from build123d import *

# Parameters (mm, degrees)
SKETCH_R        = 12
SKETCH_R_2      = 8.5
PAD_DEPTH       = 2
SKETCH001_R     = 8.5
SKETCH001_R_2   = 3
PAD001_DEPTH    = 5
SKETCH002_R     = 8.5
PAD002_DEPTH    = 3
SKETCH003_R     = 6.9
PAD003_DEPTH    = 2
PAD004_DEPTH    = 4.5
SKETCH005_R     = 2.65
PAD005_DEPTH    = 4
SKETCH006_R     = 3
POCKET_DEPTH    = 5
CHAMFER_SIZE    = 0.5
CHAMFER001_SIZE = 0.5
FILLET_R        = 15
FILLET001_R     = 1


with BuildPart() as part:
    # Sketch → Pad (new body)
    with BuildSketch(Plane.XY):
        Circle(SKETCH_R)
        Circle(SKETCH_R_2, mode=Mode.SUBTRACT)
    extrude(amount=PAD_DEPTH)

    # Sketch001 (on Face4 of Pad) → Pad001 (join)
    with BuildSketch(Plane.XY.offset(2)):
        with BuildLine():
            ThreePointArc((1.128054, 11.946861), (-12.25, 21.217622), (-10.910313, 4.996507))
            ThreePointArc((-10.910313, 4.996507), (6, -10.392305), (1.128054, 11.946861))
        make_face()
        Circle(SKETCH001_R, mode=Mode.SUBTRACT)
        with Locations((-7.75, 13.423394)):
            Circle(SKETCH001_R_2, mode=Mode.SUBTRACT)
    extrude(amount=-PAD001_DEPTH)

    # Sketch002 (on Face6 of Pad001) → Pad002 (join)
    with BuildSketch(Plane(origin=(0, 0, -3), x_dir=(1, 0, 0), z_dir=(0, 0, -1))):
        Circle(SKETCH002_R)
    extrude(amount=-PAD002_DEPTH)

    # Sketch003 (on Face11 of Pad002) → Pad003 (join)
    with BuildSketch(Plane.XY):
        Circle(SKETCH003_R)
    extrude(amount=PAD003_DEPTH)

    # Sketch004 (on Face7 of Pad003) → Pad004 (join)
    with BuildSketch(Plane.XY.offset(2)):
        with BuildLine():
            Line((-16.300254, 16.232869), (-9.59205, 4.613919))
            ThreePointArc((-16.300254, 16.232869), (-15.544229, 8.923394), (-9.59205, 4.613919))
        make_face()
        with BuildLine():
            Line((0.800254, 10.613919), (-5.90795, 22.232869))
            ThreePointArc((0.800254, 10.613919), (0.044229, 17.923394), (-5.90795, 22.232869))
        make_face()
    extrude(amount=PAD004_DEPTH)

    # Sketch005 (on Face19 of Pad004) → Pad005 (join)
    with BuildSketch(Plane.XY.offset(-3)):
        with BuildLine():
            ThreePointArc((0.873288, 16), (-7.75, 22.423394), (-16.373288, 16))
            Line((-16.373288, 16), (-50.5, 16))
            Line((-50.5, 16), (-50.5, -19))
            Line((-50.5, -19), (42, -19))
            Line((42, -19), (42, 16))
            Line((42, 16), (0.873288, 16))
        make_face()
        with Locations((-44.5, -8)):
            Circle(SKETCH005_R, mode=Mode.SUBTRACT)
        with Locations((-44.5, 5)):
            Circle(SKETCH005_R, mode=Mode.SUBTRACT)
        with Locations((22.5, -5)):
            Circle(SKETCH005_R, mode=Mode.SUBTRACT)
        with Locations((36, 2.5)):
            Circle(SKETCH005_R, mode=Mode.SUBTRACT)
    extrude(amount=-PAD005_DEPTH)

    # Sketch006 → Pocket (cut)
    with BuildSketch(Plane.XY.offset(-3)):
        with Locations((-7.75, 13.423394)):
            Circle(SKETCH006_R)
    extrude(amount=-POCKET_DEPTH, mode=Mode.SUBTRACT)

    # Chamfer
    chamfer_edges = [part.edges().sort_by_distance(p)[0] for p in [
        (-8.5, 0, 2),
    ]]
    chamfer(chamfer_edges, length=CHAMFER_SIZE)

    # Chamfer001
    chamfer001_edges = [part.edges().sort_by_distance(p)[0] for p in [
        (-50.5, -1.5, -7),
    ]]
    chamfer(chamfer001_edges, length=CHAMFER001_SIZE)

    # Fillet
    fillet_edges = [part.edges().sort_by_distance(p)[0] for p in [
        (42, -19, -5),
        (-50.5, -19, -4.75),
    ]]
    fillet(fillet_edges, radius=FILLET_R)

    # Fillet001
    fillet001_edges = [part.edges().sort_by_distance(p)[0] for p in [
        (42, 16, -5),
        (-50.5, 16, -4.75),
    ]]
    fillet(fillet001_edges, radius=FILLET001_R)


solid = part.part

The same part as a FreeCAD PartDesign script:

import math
import FreeCAD as App
import Part
import Sketcher
from FreeCAD import Vector
Q = App.Units.Quantity


def edges_at(feature, points):
    """Names of the edges that pass closest to the given points."""
    edges = feature.Shape.Edges
    near = lambda p: min(range(len(edges)), key=lambda i: edges[i].distToShape(Part.Vertex(*p))[0])
    return sorted({f"Edge{near(p) + 1}" for p in points})

doc = App.newDocument("Part")
body = doc.addObject("PartDesign::Body", "Body")

# Sketch on XY plane
sketch1 = body.newObject("Sketcher::SketchObject", "Sketch")
sketch1.AttachmentSupport = (doc.getObject("XY_Plane"), [""])
sketch1.MapMode = "FlatFace"
sketch1.addGeometry([
    Part.Circle(Vector(0, 0, 0), Vector(0, 0, 1), 12),
    Part.Circle(Vector(0, 0, 0), Vector(0, 0, 1), 8.5),
], False)
sketch1.addConstraint([
    Sketcher.Constraint("Coincident", 0, 3, -1, 1),
    Sketcher.Constraint("Coincident", 1, 3, -1, 1),
    Sketcher.Constraint("Diameter", 0, 24.0),
    Sketcher.Constraint("Diameter", 1, 17.0),
])
pad1 = body.newObject("PartDesign::Pad", "Pad")
pad1.Profile = sketch1
pad1.Length = 2

# Sketch on XY plane
sketch2 = body.newObject("Sketcher::SketchObject", "Sketch001")
sketch2.AttachmentSupport = (doc.getObject("XY_Plane"), [""])
sketch2.MapMode = "FlatFace"
sketch2.AttachmentOffset = App.Placement(Vector(0, 0, 2), App.Rotation())
sketch2.addGeometry([
    Part.ArcOfCircle(Part.Circle(Vector(-7.75, 13.423394, 0), Vector(0, 0, 1), 9), math.radians(-9.442585), math.radians(249.442582)),
    Part.ArcOfCircle(Part.Circle(Vector(-0.000001, 0, 0), Vector(0, 0, 1), 12), math.radians(155.394025), math.radians(444.605972)),
    Part.Circle(Vector(0, 0, 0), Vector(0, 0, 1), 8.5),
    Part.Circle(Vector(-7.75, 13.423394, 0), Vector(0, 0, 1), 3),
], False)
sketch2.addConstraint([
    Sketcher.Constraint("Coincident", 0, 1, 1, 2),
    Sketcher.Constraint("Coincident", 1, 1, 0, 2),
    Sketcher.Constraint("Coincident", 1, 3, -1, 1),
    Sketcher.Constraint("Coincident", 2, 3, -1, 1),
    Sketcher.Constraint("Coincident", 3, 3, 0, 3),
    Sketcher.Constraint("Diameter", 2, 17.0),
    Sketcher.Constraint("Diameter", 3, 6.0),
    Sketcher.Constraint("Radius", 0, 9.0),
    Sketcher.Constraint("Radius", 1, 12.0),
    Sketcher.Constraint("DistanceX", 0, 3, -1, 1, 7.75),
    Sketcher.Constraint("DistanceY", -1, 1, 0, 3, 13.423394),
])
pad2 = body.newObject("PartDesign::Pad", "Pad001")
pad2.Profile = sketch2
pad2.Length = 5
pad2.Reversed = True

# Sketch on XY plane
sketch3 = body.newObject("Sketcher::SketchObject", "Sketch002")
sketch3.AttachmentSupport = (doc.getObject("XY_Plane"), [""])
sketch3.MapMode = "FlatFace"
sketch3.AttachmentOffset = App.Placement(Vector(0, 0, -3), App.Rotation())
sketch3.addGeometry(Part.Circle(Vector(0, 0, 0), Vector(0, 0, 1), 8.5), False)
sketch3.addConstraint([
    Sketcher.Constraint("Coincident", 0, 3, -1, 1),
    Sketcher.Constraint("Diameter", 0, 17.0),
])
pad3 = body.newObject("PartDesign::Pad", "Pad002")
pad3.Profile = sketch3
pad3.Length = 3

# Sketch on XY plane
sketch4 = body.newObject("Sketcher::SketchObject", "Sketch003")
sketch4.AttachmentSupport = (doc.getObject("XY_Plane"), [""])
sketch4.MapMode = "FlatFace"
sketch4.addGeometry(Part.Circle(Vector(0, 0, 0), Vector(0, 0, 1), 6.9), False)
sketch4.addConstraint([
    Sketcher.Constraint("Coincident", 0, 3, -1, 1),
    Sketcher.Constraint("Diameter", 0, 13.8),
])
pad4 = body.newObject("PartDesign::Pad", "Pad003")
pad4.Profile = sketch4
pad4.Length = 2

# Sketch on XY plane
sketch5 = body.newObject("Sketcher::SketchObject", "Sketch004")
sketch5.AttachmentSupport = (doc.getObject("XY_Plane"), [""])
sketch5.MapMode = "FlatFace"
sketch5.AttachmentOffset = App.Placement(Vector(0, 0, 2), App.Rotation())
sketch5.addGeometry([
    Part.LineSegment(Vector(-9.59205, 4.613919, 0), Vector(-16.300254, 16.232869, 0)),
    Part.ArcOfCircle(Part.Circle(Vector(-7.750001, 13.423393, 0), Vector(0, 0, 1), 8.999999), math.radians(161.810306), math.radians(258.189695)),
    Part.LineSegment(Vector(-5.90795, 22.232869, 0), Vector(0.800254, 10.613919, 0)),
    Part.ArcOfCircle(Part.Circle(Vector(-7.749999, 13.423395, 0), Vector(0, 0, 1), 8.999999), math.radians(-18.189694), math.radians(78.189695)),
], False)
sketch5.addConstraint([
    Sketcher.Constraint("Coincident", 0, 1, 1, 2),
    Sketcher.Constraint("Coincident", 1, 1, 0, 2),
    Sketcher.Constraint("Coincident", 2, 1, 3, 2),
    Sketcher.Constraint("Coincident", 3, 1, 2, 2),
    Sketcher.Constraint("Coincident", 3, 3, 1, 3),
    Sketcher.Constraint("Equal", 1, 3),
    Sketcher.Constraint("Parallel", 0, 2),
    Sketcher.Constraint("Equal", 0, 2),
    Sketcher.Constraint("Radius", 1, 8.999999),
    Sketcher.Constraint("Angle", 0, Q("120 deg")),
    Sketcher.Constraint("DistanceY", 1, 1, 2, 1, 6.0),
    Sketcher.Constraint("DistanceX", 1, 3, -1, 1, 7.750001),
    Sketcher.Constraint("DistanceY", -1, 1, 0, 1, 4.613919),
])
pad5 = body.newObject("PartDesign::Pad", "Pad004")
pad5.Profile = sketch5
pad5.Length = 4.5

# Sketch on XY plane
sketch6 = body.newObject("Sketcher::SketchObject", "Sketch005")
sketch6.AttachmentSupport = (doc.getObject("XY_Plane"), [""])
sketch6.MapMode = "FlatFace"
sketch6.AttachmentOffset = App.Placement(Vector(0, 0, -3), App.Rotation())
sketch6.addGeometry([
    Part.ArcOfCircle(Part.Circle(Vector(-7.75, 13.423394, 0), Vector(0, 0, 1), 9), math.radians(16.635945), math.radians(163.364055)),  # 0
    Part.LineSegment(Vector(-16.373288, 16, 0), Vector(-50.5, 16, 0)),  # 1
    Part.LineSegment(Vector(-50.5, 16, 0), Vector(-50.5, -19, 0)),  # 2
    Part.LineSegment(Vector(-50.5, -19, 0), Vector(42, -19, 0)),  # 3
    Part.LineSegment(Vector(42, -19, 0), Vector(42, 16, 0)),  # 4
    Part.LineSegment(Vector(42, 16, 0), Vector(0.873288, 16, 0)),  # 5
    Part.Circle(Vector(-44.5, -8, 0), Vector(0, 0, 1), 2.65),  # 6
    Part.Circle(Vector(22.5, -5, 0), Vector(0, 0, 1), 2.65),  # 7
    Part.Circle(Vector(-44.5, 5, 0), Vector(0, 0, 1), 2.65),  # 8
    Part.Circle(Vector(36, 2.5, 0), Vector(0, 0, 1), 2.65),  # 9
], False)
sketch6.addConstraint([
    Sketcher.Constraint("Coincident", 0, 2, 1, 1),
    Sketcher.Constraint("Coincident", 1, 2, 2, 1),
    Sketcher.Constraint("Coincident", 2, 2, 3, 1),
    Sketcher.Constraint("Coincident", 3, 2, 4, 1),
    Sketcher.Constraint("Coincident", 4, 2, 5, 1),
    Sketcher.Constraint("Coincident", 5, 2, 0, 1),
    Sketcher.Constraint("Horizontal", 1),
    Sketcher.Constraint("Vertical", 2),
    Sketcher.Constraint("Horizontal", 3),
    Sketcher.Constraint("Vertical", 4),
    Sketcher.Constraint("Horizontal", 5),
    Sketcher.Constraint("Equal", 6, 7),
    Sketcher.Constraint("Equal", 7, 8),
    Sketcher.Constraint("Equal", 8, 9),
    Sketcher.Constraint("Horizontal", 1, 2, 4, 2),
    Sketcher.Constraint("Vertical", 6, 3, 8, 3),
    Sketcher.Constraint("Radius", 0, 9.0),
    Sketcher.Constraint("Diameter", 6, 5.3),
    Sketcher.Constraint("DistanceY", 2, 2, 2, 1, 35.0),
    Sketcher.Constraint("DistanceX", 3, 1, 3, 2, 92.5),
    Sketcher.Constraint("DistanceY", 6, 3, -1, 1, 8.0),
    Sketcher.Constraint("DistanceY", 7, 3, -1, 1, 5.0),
    Sketcher.Constraint("DistanceY", -1, 1, 8, 3, 5.0),
    Sketcher.Constraint("DistanceX", -1, 1, 9, 3, 36.0),
    Sketcher.Constraint("DistanceY", -1, 1, 0, 2, 16.0),
    Sketcher.Constraint("DistanceX", -1, 1, 3, 2, 42.0),
    Sketcher.Constraint("DistanceX", 6, 3, 7, 3, 67.0),
    Sketcher.Constraint("DistanceX", 1, 2, 8, 3, 6.0),
    Sketcher.Constraint("DistanceY", -1, 1, 9, 3, 2.5),
    Sketcher.Constraint("DistanceX", 0, 3, -1, 1, 7.75),
    Sketcher.Constraint("DistanceX", 1, 2, 1, 1, 34.126712),
])
pad6 = body.newObject("PartDesign::Pad", "Pad005")
pad6.Profile = sketch6
pad6.Length = 4
pad6.Reversed = True

# Sketch on XY plane
sketch7 = body.newObject("Sketcher::SketchObject", "Sketch006")
sketch7.AttachmentSupport = (doc.getObject("XY_Plane"), [""])
sketch7.MapMode = "FlatFace"
sketch7.AttachmentOffset = App.Placement(Vector(0, 0, -3), App.Rotation())
sketch7.addGeometry(Part.Circle(Vector(-7.75, 13.423394, 0), Vector(0, 0, 1), 3), False)
sketch7.addConstraint([
    Sketcher.Constraint("Diameter", 0, 6.0),
    Sketcher.Constraint("DistanceX", 0, 3, -1, 1, 7.75),
    Sketcher.Constraint("DistanceY", -1, 1, 0, 3, 13.423394),
])
pocket1 = body.newObject("PartDesign::Pocket", "Pocket")
pocket1.Profile = sketch7
pocket1.Length = 5
doc.recompute()

chamfer = body.newObject("PartDesign::Chamfer", "Chamfer")
chamfer.Base = (pocket1, edges_at(pocket1, [(-8.5, 0, 2)]))
chamfer.Size = 0.5
doc.recompute()

chamfer2 = body.newObject("PartDesign::Chamfer", "Chamfer001")
chamfer2.Base = (chamfer, edges_at(chamfer, [(-50.5, -1.5, -7)]))
chamfer2.Size = 0.5
doc.recompute()

fillet = body.newObject("PartDesign::Fillet", "Fillet")
fillet.Base = (chamfer2, edges_at(chamfer2, [(42, -19, -5), (-50.5, -19, -4.75)]))
fillet.Radius = 15
doc.recompute()

fillet2 = body.newObject("PartDesign::Fillet", "Fillet001")
fillet2.Base = (fillet, edges_at(fillet, [(42, 16, -5), (-50.5, 16, -4.75)]))
fillet2.Radius = 1

doc.recompute()
